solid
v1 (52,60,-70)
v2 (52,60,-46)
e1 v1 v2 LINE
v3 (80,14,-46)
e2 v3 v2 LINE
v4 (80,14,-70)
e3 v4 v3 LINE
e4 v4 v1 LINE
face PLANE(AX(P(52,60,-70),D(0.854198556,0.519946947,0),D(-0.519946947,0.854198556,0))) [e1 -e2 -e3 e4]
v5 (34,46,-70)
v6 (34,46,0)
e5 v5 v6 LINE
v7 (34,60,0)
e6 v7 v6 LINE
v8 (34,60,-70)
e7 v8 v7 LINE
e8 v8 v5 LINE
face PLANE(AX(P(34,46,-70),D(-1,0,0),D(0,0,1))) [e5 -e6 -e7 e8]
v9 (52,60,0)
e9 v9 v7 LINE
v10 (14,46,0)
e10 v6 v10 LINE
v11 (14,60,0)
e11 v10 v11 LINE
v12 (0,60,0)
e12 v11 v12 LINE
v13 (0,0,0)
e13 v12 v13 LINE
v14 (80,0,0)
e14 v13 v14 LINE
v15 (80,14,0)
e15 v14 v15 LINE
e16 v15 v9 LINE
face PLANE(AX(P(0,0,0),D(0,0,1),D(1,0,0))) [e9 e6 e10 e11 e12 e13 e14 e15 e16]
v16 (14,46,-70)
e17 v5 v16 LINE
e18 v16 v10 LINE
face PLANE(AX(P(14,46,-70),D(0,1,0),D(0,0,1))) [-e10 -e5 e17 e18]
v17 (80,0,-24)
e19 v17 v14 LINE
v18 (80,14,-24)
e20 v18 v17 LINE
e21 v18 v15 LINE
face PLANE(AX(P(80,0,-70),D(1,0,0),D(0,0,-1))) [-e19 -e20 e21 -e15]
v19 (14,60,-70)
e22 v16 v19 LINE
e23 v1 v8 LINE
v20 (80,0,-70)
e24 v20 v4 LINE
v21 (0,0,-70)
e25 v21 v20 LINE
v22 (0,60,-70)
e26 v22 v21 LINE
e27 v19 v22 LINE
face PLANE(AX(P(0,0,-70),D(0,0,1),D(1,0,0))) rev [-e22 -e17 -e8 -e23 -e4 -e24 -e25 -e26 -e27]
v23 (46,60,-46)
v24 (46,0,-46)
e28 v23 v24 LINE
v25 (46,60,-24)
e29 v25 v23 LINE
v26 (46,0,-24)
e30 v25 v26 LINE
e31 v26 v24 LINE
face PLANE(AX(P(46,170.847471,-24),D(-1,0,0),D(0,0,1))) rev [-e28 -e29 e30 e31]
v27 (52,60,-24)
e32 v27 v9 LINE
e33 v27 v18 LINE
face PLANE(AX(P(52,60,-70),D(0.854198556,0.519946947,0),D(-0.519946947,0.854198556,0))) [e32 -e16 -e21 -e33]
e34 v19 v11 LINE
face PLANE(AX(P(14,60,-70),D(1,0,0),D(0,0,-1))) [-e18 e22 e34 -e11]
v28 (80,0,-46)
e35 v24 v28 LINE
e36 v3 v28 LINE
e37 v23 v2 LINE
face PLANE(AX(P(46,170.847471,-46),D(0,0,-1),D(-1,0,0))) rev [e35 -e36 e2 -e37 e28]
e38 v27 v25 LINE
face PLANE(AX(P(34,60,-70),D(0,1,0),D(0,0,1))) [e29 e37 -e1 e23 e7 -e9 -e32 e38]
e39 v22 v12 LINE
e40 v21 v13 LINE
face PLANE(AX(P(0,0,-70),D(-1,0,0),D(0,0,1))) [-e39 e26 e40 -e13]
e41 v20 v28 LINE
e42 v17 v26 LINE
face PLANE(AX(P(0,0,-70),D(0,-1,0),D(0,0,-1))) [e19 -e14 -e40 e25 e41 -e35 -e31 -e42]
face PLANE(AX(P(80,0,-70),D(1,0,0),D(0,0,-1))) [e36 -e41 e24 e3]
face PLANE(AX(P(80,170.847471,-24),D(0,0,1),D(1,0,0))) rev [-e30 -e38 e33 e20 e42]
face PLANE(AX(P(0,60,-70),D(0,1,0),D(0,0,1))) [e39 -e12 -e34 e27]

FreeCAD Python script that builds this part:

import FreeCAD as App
import Part
import Sketcher
from FreeCAD import Vector
Q = App.Units.Quantity

doc = App.newDocument("Part")
body = doc.addObject("PartDesign::Body", "Body")

sketch1 = body.newObject("Sketcher::SketchObject", "Sketch")
sketch1.AttachmentSupport = (doc.getObject("XY_Plane"), [""])
sketch1.MapMode = "FlatFace"
sketch1.addGeometry([
    Part.LineSegment(Vector(0, 60, 0), Vector(0, 0, 0)),
    Part.LineSegment(Vector(0, 0, 0), Vector(80, 0, 0)),
    Part.LineSegment(Vector(80, 0, 0), Vector(80, 14, 0)),
    Part.LineSegment(Vector(80, 14, 0), Vector(52, 60, 0)),
    Part.LineSegment(Vector(52, 60, 0), Vector(34, 60, 0)),
    Part.LineSegment(Vector(34, 60, 0), Vector(34, 46, 0)),
    Part.LineSegment(Vector(34, 46, 0), Vector(14, 46, 0)),
    Part.LineSegment(Vector(14, 46, 0), Vector(14, 60, 0)),
    Part.LineSegment(Vector(14, 60, 0), Vector(0, 60, 0)),
], False)
sketch1.addConstraint([
    Sketcher.Constraint("Coincident", 0, 2, 1, 1),
    Sketcher.Constraint("Coincident", 1, 2, 2, 1),
    Sketcher.Constraint("Coincident", 2, 2, 3, 1),
    Sketcher.Constraint("Coincident", 3, 2, 4, 1),
    Sketcher.Constraint("Coincident", 4, 2, 5, 1),
    Sketcher.Constraint("Coincident", 5, 2, 6, 1),
    Sketcher.Constraint("Coincident", 6, 2, 7, 1),
    Sketcher.Constraint("Coincident", 7, 2, 8, 1),
    Sketcher.Constraint("Coincident", 8, 2, 0, 1),
    Sketcher.Constraint("Vertical", 0),
    Sketcher.Constraint("Horizontal", 1),
    Sketcher.Constraint("Vertical", 2),
    Sketcher.Constraint("Horizontal", 4),
    Sketcher.Constraint("Vertical", 5),
    Sketcher.Constraint("Horizontal", 6),
    Sketcher.Constraint("Vertical", 7),
    Sketcher.Constraint("Horizontal", 8),
    Sketcher.Constraint("Coincident", 0, 2, -1, 1),
    Sketcher.Constraint("Horizontal", 4, 2, 7, 2),
    Sketcher.Constraint("Equal", 8, 2),
    Sketcher.Constraint("Equal", 2, 5),
    Sketcher.Constraint("DistanceX", 1, 1, 1, 2, Q("80 mm")),
    Sketcher.Constraint("DistanceX", 4, 2, 4, 1, Q("18 mm")),
    Sketcher.Constraint("DistanceX", 6, 2, 6, 1, Q("20 mm")),
    Sketcher.Constraint("DistanceX", 8, 2, 8, 1, Q("14 mm")),
    Sketcher.Constraint("DistanceY", 0, 2, 0, 1, Q("60 mm")),
])
pad1 = body.newObject("PartDesign::Pad", "Pad")
pad1.Profile = sketch1
pad1.Length = 70
pad1.Reversed = True

sketch2 = body.newObject("Sketcher::SketchObject", "Sketch001")
sketch2.AttachmentSupport = (doc.getObject("XZ_Plane"), [""])
sketch2.MapMode = "FlatFace"
sketch2.addGeometry([
    Part.LineSegment(Vector(-13.207, -83.207, 0), Vector(-13.207, 13.207, 0)),
    Part.LineSegment(Vector(-13.207, 13.207, 0), Vector(93.207, 13.207, 0)),
    Part.LineSegment(Vector(93.207, 13.207, 0), Vector(93.207, -83.207, 0)),
    Part.LineSegment(Vector(93.207, -83.207, 0), Vector(-13.207, -83.207, 0)),
    Part.LineSegment(Vector(0, -70, 0), Vector(80, -70, 0)),
    Part.LineSegment(Vector(80, -70, 0), Vector(80, -46, 0)),
    Part.LineSegment(Vector(80, -46, 0), Vector(46, -46, 0)),
    Part.LineSegment(Vector(46, -46, 0), Vector(46, -24, 0)),
    Part.LineSegment(Vector(46, -24, 0), Vector(80, -24, 0)),
    Part.LineSegment(Vector(80, -24, 0), Vector(80, 0, 0)),
    Part.LineSegment(Vector(80, 0, 0), Vector(0, 0, 0)),
    Part.LineSegment(Vector(0, 0, 0), Vector(0, -70, 0)),
], False)
sketch2.addConstraint([
    Sketcher.Constraint("Coincident", 0, 2, 1, 1),
    Sketcher.Constraint("Coincident", 1, 2, 2, 1),
    Sketcher.Constraint("Coincident", 2, 2, 3, 1),
    Sketcher.Constraint("Coincident", 3, 2, 0, 1),
    Sketcher.Constraint("Coincident", 4, 2, 5, 1),
    Sketcher.Constraint("Coincident", 5, 2, 6, 1),
    Sketcher.Constraint("Coincident", 6, 2, 7, 1),
    Sketcher.Constraint("Coincident", 7, 2, 8, 1),
    Sketcher.Constraint("Coincident", 8, 2, 9, 1),
    Sketcher.Constraint("Coincident", 9, 2, 10, 1),
    Sketcher.Constraint("Coincident", 10, 2, 11, 1),
    Sketcher.Constraint("Coincident", 11, 2, 4, 1),
    Sketcher.Constraint("Vertical", 0),
    Sketcher.Constraint("Horizontal", 1),
    Sketcher.Constraint("Vertical", 2),
    Sketcher.Constraint("Horizontal", 3),
    Sketcher.Constraint("Horizontal", 4),
    Sketcher.Constraint("Vertical", 5),
    Sketcher.Constraint("Horizontal", 6),
    Sketcher.Constraint("Vertical", 7),
    Sketcher.Constraint("Horizontal", 8),
    Sketcher.Constraint("Vertical", 9),
    Sketcher.Constraint("Horizontal", 10),
    Sketcher.Constraint("Vertical", 11),
    Sketcher.Constraint("Coincident", 10, 2, -1, 1),
    Sketcher.Constraint("Vertical", 5, 2, 8, 2),
    Sketcher.Constraint("Equal", 5, 9),
    Sketcher.Constraint("DistanceX", 4, 1, 4, 2, Q("80 mm")),
    Sketcher.Constraint("DistanceX", 6, 2, 6, 1, Q("34 mm")),
    Sketcher.Constraint("DistanceY", 5, 1, 5, 2, Q("24 mm")),
    Sketcher.Constraint("DistanceY", 7, 1, 7, 2, Q("22 mm")),
    Sketcher.Constraint("DistanceX", 1, 1, 1, 2, Q("106.414 mm")),
    Sketcher.Constraint("DistanceY", 0, 1, 0, 2, Q("96.414 mm")),
    Sketcher.Constraint("DistanceX", 0, 2, -1, 1, Q("13.207 mm")),
    Sketcher.Constraint("DistanceY", -1, 1, 0, 2, Q("13.207 mm")),
])
pocket1 = body.newObject("PartDesign::Pocket", "Pocket")
pocket1.Profile = sketch2
pocket1.Length = 60

doc.recompute()
